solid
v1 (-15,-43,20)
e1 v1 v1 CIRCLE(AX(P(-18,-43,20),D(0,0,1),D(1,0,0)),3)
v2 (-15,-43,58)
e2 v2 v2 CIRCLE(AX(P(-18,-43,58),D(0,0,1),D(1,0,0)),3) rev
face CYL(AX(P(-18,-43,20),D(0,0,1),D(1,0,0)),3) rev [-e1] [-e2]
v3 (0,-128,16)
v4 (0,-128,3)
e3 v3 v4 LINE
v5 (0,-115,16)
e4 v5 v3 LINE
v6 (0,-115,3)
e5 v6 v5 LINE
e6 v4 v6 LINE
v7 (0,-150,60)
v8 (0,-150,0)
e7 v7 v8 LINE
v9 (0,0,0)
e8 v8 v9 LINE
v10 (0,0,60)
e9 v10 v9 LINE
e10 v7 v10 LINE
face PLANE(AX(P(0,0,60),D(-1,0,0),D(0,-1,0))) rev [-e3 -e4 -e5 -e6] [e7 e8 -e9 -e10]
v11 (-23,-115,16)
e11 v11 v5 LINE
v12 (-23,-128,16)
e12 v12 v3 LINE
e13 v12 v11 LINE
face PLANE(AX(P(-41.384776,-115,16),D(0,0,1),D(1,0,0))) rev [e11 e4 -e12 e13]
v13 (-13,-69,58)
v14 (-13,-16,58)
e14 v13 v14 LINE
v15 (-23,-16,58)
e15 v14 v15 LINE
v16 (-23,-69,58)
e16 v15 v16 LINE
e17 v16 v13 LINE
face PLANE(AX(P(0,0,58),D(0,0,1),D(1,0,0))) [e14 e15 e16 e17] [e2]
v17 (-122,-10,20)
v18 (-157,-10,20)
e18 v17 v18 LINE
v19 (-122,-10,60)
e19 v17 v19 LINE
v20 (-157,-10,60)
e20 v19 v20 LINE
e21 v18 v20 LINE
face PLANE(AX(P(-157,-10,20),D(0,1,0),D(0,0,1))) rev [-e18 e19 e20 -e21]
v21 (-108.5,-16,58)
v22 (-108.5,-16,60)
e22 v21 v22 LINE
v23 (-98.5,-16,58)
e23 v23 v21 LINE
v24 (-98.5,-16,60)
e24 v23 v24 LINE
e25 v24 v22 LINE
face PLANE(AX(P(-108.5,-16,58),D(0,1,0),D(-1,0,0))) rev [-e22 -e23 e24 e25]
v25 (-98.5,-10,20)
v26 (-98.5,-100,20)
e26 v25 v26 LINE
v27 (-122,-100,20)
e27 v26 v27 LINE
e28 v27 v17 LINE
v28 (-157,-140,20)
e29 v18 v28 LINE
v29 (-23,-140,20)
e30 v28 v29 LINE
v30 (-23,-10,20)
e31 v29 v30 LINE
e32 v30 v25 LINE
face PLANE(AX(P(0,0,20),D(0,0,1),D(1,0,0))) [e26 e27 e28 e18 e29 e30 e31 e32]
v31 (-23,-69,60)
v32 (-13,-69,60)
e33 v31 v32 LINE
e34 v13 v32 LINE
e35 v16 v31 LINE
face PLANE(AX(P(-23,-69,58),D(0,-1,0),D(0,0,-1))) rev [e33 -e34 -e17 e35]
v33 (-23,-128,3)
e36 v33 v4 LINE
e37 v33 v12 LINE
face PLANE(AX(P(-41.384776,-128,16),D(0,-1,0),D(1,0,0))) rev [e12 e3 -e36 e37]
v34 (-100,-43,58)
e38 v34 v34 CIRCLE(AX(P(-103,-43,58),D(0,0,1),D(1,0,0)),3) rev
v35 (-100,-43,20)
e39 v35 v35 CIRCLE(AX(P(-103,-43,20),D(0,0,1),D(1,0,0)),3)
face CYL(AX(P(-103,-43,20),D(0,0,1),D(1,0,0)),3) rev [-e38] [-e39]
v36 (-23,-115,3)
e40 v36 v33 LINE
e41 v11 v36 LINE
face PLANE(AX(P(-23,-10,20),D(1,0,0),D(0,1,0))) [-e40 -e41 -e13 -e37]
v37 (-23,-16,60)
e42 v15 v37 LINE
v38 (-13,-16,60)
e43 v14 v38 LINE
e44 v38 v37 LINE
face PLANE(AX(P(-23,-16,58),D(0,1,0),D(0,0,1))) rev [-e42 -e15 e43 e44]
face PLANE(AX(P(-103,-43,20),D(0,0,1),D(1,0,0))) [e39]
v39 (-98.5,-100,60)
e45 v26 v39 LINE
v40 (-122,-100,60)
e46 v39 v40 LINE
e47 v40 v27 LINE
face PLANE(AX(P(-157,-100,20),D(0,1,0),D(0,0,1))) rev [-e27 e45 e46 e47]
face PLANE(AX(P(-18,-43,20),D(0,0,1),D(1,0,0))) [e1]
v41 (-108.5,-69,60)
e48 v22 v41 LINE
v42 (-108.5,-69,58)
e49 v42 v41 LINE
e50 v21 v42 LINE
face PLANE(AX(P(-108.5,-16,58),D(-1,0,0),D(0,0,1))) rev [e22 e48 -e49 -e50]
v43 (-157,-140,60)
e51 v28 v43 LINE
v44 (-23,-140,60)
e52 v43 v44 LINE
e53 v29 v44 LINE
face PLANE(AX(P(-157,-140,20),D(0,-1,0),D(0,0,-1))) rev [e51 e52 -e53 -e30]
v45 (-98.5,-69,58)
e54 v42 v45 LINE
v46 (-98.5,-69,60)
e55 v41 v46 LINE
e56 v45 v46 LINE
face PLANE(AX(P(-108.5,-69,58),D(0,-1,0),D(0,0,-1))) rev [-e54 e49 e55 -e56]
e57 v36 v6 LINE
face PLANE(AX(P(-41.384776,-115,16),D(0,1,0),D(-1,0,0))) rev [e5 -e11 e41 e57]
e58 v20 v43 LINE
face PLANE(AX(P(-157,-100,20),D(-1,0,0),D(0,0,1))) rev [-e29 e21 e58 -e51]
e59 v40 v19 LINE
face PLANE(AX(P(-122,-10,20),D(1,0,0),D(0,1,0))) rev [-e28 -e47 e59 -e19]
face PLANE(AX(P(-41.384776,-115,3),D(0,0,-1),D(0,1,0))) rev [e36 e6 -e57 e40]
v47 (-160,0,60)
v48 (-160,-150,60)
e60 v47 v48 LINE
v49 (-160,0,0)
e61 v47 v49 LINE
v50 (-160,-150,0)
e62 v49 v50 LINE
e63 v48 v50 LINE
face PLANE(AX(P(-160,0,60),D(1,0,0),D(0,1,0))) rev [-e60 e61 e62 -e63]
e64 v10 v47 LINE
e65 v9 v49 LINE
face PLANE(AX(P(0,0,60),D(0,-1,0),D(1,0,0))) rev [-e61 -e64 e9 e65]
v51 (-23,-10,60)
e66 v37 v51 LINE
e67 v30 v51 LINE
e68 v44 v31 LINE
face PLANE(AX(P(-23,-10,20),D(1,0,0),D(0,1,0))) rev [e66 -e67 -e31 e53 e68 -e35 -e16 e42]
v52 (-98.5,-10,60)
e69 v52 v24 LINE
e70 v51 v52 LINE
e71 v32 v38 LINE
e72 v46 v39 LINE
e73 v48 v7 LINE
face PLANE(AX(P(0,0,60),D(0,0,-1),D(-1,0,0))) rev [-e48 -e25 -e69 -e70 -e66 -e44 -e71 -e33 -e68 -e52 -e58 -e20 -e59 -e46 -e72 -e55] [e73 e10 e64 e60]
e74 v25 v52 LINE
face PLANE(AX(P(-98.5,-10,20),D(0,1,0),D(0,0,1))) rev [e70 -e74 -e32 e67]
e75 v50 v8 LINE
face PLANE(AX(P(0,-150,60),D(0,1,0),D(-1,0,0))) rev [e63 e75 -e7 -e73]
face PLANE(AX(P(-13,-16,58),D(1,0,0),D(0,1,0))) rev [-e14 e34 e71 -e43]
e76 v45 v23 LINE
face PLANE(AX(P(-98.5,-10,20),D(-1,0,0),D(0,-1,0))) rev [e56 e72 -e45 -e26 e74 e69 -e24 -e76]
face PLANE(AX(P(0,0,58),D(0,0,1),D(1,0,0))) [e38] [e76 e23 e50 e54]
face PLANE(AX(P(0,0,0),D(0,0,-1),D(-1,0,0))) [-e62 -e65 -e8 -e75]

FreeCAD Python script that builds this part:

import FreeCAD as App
import Part
import Sketcher
Q = App.Units.Quantity


def add_polygon(sketch, points):
    """Adds a closed chain of lines whose ends are joined by coincident constraints."""
    first, n = sketch.GeometryCount, len(points)
    for a, b in zip(points, points[1:] + points[:1]):
        sketch.addGeometry(Part.LineSegment(App.Vector(*a, 0), App.Vector(*b, 0)), False)
    for i in range(n):
        sketch.addConstraint(Sketcher.Constraint("Coincident", first + i, 2, first + (i + 1) % n, 1))

doc = App.newDocument("Part")
params = doc.addObject("Spreadsheet::Sheet", "Params")
for row, (alias, value) in enumerate([
    ("sketch1_width", "160 mm"),
    ("sketch1_height", "150 mm"),
    ("pad1_length", "60 mm"),
    ("sketch2_width", "134 mm"),
    ("sketch2_height", "90 mm"),
    ("sketch2_height2", "40 mm"),
    ("sketch2_width2", "75.5 mm"),
    ("pocket1_length", "40 mm"),
    ("sketch3_diameter", "6 mm"),
    ("pocket2_length", "40 mm"),
    ("sketch4_width", "13 mm"),
    ("pocket3_length", "23 mm"),
    ("sketch5_width", "10 mm"),
    ("sketch5_height", "53 mm"),
    ("pocket4_length", "2 mm"),
    ("sketch6_width", "35 mm"),
    ("sketch6_height", "130 mm"),
    ("pocket5_length", "40 mm"),
], start=1):
    params.set(f"A{row}", alias)
    params.set(f"B{row}", "=" + value)
    params.setAlias(f"B{row}", alias)

body = doc.addObject("PartDesign::Body", "Body")

sketch1 = doc.addObject("Sketcher::SketchObject", "Sketch")
body.addObject(sketch1)
sketch1.AttachmentSupport = (doc.XY_Plane, [""])
sketch1.MapMode = "FlatFace"
add_polygon(sketch1, [(-160, 0), (-160, -150), (0, -150), (0, 0)])
sketch1.addConstraint(Sketcher.Constraint("Vertical", 0))
sketch1.addConstraint(Sketcher.Constraint("Horizontal", 1))
sketch1.addConstraint(Sketcher.Constraint("Vertical", 2))
sketch1.addConstraint(Sketcher.Constraint("Horizontal", 3))
sketch1.addConstraint(Sketcher.Constraint("Coincident", 2, 2, -1, 1))
sketch1.addConstraint(Sketcher.Constraint("DistanceX", 1, 1, 1, 2, Q("160 mm")))
sketch1.addConstraint(Sketcher.Constraint("DistanceY", 0, 2, 0, 1, Q("150 mm")))
sketch1.setExpression("Constraints[9]", "Params.sketch1_width")
sketch1.setExpression("Constraints[10]", "Params.sketch1_height")
pad1 = doc.addObject("PartDesign::Pad", "Pad")
body.addObject(pad1)
pad1.Profile = sketch1
pad1.setExpression("Length", "Params.pad1_length")

sketch2 = doc.addObject("Sketcher::SketchObject", "Sketch001")
body.addObject(sketch2)
sketch2.AttachmentSupport = (doc.XY_Plane, [""])
sketch2.MapMode = "FlatFace"
sketch2.AttachmentOffset = App.Placement(App.Vector(0, 0, 60), App.Rotation())
add_polygon(sketch2, [(-23, -10), (-98, -10), (-98, -100), (-157, -100), (-157, -140), (-23, -140)])
sketch2.addConstraint(Sketcher.Constraint("Horizontal", 0))
sketch2.addConstraint(Sketcher.Constraint("Vertical", 1))
sketch2.addConstraint(Sketcher.Constraint("Horizontal", 2))
sketch2.addConstraint(Sketcher.Constraint("Vertical", 3))
sketch2.addConstraint(Sketcher.Constraint("Horizontal", 4))
sketch2.addConstraint(Sketcher.Constraint("Vertical", 5))
sketch2.addConstraint(Sketcher.Constraint("DistanceX", 4, 1, 4, 2, Q("134 mm")))
sketch2.addConstraint(Sketcher.Constraint("DistanceY", 1, 2, 1, 1, Q("90 mm")))
sketch2.addConstraint(Sketcher.Constraint("DistanceY", 3, 2, 3, 1, Q("40 mm")))
sketch2.addConstraint(Sketcher.Constraint("DistanceX", 0, 2, 0, 1, Q("75.5 mm")))
sketch2.addConstraint(Sketcher.Constraint("DistanceY", 0, 2, -1, 1, Q("10 mm")))
sketch2.addConstraint(Sketcher.Constraint("DistanceX", 2, 2, -1, 1, Q("157 mm")))
sketch2.setExpression("Constraints[12]", "Params.sketch2_width")
sketch2.setExpression("Constraints[13]", "Params.sketch2_height")
sketch2.setExpression("Constraints[14]", "Params.sketch2_height2")
sketch2.setExpression("Constraints[15]", "Params.sketch2_width2")
pocket1 = doc.addObject("PartDesign::Pocket", "Pocket")
body.addObject(pocket1)
pocket1.Profile = sketch2
pocket1.setExpression("Length", "Params.pocket1_length")

sketch3 = doc.addObject("Sketcher::SketchObject", "Sketch002")
body.addObject(sketch3)
sketch3.AttachmentSupport = (doc.XY_Plane, [""])
sketch3.MapMode = "FlatFace"
sketch3.AttachmentOffset = App.Placement(App.Vector(0, 0, 60), App.Rotation())
sketch3.addGeometry(Part.Circle(App.Vector(-103, -43, 0), App.Vector(0, 0, 1), 3), False)
sketch3.addGeometry(Part.Circle(App.Vector(-18, -43, 0), App.Vector(0, 0, 1), 3), False)
sketch3.addConstraint(Sketcher.Constraint("Equal", 0, 1))
sketch3.addConstraint(Sketcher.Constraint("Horizontal", 0, 3, 1, 3))
sketch3.addConstraint(Sketcher.Constraint("Diameter", 0, Q("6 mm")))
sketch3.addConstraint(Sketcher.Constraint("DistanceX", 0, 3, -1, 1, Q("103 mm")))
sketch3.addConstraint(Sketcher.Constraint("DistanceY", 0, 3, -1, 1, Q("43 mm")))
sketch3.addConstraint(Sketcher.Constraint("DistanceX", 1, 3, -1, 1, Q("18 mm")))
sketch3.setExpression("Constraints[2]", "Params.sketch3_diameter")
pocket2 = doc.addObject("PartDesign::Pocket", "Pocket001")
body.addObject(pocket2)
pocket2.Profile = sketch3
pocket2.setExpression("Length", "Params.pocket2_length")

sketch4 = doc.addObject("Sketcher::SketchObject", "Sketch003")
body.addObject(sketch4)
sketch4.AttachmentSupport = (doc.YZ_Plane, [""])
sketch4.MapMode = "FlatFace"
add_polygon(sketch4, [(-115, 16), (-128, 16), (-128, 3), (-115, 3)])
sketch4.addConstraint(Sketcher.Constraint("Horizontal", 0))
sketch4.addConstraint(Sketcher.Constraint("Vertical", 1))
sketch4.addConstraint(Sketcher.Constraint("Horizontal", 2))
sketch4.addConstraint(Sketcher.Constraint("Vertical", 3))
sketch4.addConstraint(Sketcher.Constraint("Equal", 2, 1))
sketch4.addConstraint(Sketcher.Constraint("DistanceX", 0, 2, 0, 1, Q("13 mm")))
sketch4.addConstraint(Sketcher.Constraint("DistanceX", 0, 2, -1, 1, Q("128 mm")))
sketch4.addConstraint(Sketcher.Constraint("DistanceY", -1, 1, 0, 2, Q("16 mm")))
sketch4.setExpression("Constraints[9]", "Params.sketch4_width")
pocket3 = doc.addObject("PartDesign::Pocket", "Pocket002")
body.addObject(pocket3)
pocket3.Profile = sketch4
pocket3.setExpression("Length", "Params.pocket3_length")

sketch5 = doc.addObject("Sketcher::SketchObject", "Sketch004")
body.addObject(sketch5)
sketch5.AttachmentSupport = (doc.XY_Plane, [""])
sketch5.MapMode = "FlatFace"
sketch5.AttachmentOffset = App.Placement(App.Vector(0, 0, 60), App.Rotation())
add_polygon(sketch5, [(-108, -16), (-108, -69), (-98, -69), (-98, -16)])
add_polygon(sketch5, [(-23, -16), (-23, -69), (-13, -69), (-13, -16)])
sketch5.addConstraint(Sketcher.Constraint("Vertical", 0))
sketch5.addConstraint(Sketcher.Constraint("Horizontal", 1))
sketch5.addConstraint(Sketcher.Constraint("Vertical", 2))
sketch5.addConstraint(Sketcher.Constraint("Horizontal", 3))
sketch5.addConstraint(Sketcher.Constraint("Vertical", 4))
sketch5.addConstraint(Sketcher.Constraint("Horizontal", 5))
sketch5.addConstraint(Sketcher.Constraint("Vertical", 6))
sketch5.addConstraint(Sketcher.Constraint("Horizontal", 7))
sketch5.addConstraint(Sketcher.Constraint("Horizontal", 1, 2, 4, 2))
sketch5.addConstraint(Sketcher.Constraint("Horizontal", 3, 2, 6, 2))
sketch5.addConstraint(Sketcher.Constraint("Equal", 3, 5))
sketch5.addConstraint(Sketcher.Constraint("DistanceX", 1, 1, 1, 2, Q("10 mm")))
sketch5.addConstraint(Sketcher.Constraint("DistanceY", 0, 2, 0, 1, Q("53 mm")))
sketch5.addConstraint(Sketcher.Constraint("DistanceY", 0, 2, -1, 1, Q("69 mm")))
sketch5.addConstraint(Sketcher.Constraint("DistanceX", 4, 2, -1, 1, Q("23 mm")))
sketch5.addConstraint(Sketcher.Constraint("DistanceX", 0, 2, -1, 1, Q("108.5 mm")))
sketch5.setExpression("Constraints[19]", "Params.sketch5_width")
sketch5.setExpression("Constraints[20]", "Params.sketch5_height")
pocket4 = doc.addObject("PartDesign::Pocket", "Pocket003")
body.addObject(pocket4)
pocket4.Profile = sketch5
pocket4.setExpression("Length", "Params.pocket4_length")

sketch6 = doc.addObject("Sketcher::SketchObject", "Sketch005")
body.addObject(sketch6)
sketch6.AttachmentSupport = (doc.XY_Plane, [""])
sketch6.MapMode = "FlatFace"
sketch6.AttachmentOffset = App.Placement(App.Vector(0, 0, 60), App.Rotation())
add_polygon(sketch6, [(-157, -10), (-157, -140), (-122, -140), (-122, -10)])
sketch6.addConstraint(Sketcher.Constraint("Vertical", 0))
sketch6.addConstraint(Sketcher.Constraint("Horizontal", 1))
sketch6.addConstraint(Sketcher.Constraint("Vertical", 2))
sketch6.addConstraint(Sketcher.Constraint("Horizontal", 3))
sketch6.addConstraint(Sketcher.Constraint("DistanceX", 1, 1, 1, 2, Q("35 mm")))
sketch6.addConstraint(Sketcher.Constraint("DistanceY", 0, 2, 0, 1, Q("130 mm")))
sketch6.addConstraint(Sketcher.Constraint("DistanceX", 0, 2, -1, 1, Q("157 mm")))
sketch6.addConstraint(Sketcher.Constraint("DistanceY", 0, 2, -1, 1, Q("140 mm")))
sketch6.setExpression("Constraints[8]", "Params.sketch6_width")
sketch6.setExpression("Constraints[9]", "Params.sketch6_height")
pocket5 = doc.addObject("PartDesign::Pocket", "Pocket004")
body.addObject(pocket5)
pocket5.Profile = sketch6
pocket5.setExpression("Length", "Params.pocket5_length")

doc.recompute()
